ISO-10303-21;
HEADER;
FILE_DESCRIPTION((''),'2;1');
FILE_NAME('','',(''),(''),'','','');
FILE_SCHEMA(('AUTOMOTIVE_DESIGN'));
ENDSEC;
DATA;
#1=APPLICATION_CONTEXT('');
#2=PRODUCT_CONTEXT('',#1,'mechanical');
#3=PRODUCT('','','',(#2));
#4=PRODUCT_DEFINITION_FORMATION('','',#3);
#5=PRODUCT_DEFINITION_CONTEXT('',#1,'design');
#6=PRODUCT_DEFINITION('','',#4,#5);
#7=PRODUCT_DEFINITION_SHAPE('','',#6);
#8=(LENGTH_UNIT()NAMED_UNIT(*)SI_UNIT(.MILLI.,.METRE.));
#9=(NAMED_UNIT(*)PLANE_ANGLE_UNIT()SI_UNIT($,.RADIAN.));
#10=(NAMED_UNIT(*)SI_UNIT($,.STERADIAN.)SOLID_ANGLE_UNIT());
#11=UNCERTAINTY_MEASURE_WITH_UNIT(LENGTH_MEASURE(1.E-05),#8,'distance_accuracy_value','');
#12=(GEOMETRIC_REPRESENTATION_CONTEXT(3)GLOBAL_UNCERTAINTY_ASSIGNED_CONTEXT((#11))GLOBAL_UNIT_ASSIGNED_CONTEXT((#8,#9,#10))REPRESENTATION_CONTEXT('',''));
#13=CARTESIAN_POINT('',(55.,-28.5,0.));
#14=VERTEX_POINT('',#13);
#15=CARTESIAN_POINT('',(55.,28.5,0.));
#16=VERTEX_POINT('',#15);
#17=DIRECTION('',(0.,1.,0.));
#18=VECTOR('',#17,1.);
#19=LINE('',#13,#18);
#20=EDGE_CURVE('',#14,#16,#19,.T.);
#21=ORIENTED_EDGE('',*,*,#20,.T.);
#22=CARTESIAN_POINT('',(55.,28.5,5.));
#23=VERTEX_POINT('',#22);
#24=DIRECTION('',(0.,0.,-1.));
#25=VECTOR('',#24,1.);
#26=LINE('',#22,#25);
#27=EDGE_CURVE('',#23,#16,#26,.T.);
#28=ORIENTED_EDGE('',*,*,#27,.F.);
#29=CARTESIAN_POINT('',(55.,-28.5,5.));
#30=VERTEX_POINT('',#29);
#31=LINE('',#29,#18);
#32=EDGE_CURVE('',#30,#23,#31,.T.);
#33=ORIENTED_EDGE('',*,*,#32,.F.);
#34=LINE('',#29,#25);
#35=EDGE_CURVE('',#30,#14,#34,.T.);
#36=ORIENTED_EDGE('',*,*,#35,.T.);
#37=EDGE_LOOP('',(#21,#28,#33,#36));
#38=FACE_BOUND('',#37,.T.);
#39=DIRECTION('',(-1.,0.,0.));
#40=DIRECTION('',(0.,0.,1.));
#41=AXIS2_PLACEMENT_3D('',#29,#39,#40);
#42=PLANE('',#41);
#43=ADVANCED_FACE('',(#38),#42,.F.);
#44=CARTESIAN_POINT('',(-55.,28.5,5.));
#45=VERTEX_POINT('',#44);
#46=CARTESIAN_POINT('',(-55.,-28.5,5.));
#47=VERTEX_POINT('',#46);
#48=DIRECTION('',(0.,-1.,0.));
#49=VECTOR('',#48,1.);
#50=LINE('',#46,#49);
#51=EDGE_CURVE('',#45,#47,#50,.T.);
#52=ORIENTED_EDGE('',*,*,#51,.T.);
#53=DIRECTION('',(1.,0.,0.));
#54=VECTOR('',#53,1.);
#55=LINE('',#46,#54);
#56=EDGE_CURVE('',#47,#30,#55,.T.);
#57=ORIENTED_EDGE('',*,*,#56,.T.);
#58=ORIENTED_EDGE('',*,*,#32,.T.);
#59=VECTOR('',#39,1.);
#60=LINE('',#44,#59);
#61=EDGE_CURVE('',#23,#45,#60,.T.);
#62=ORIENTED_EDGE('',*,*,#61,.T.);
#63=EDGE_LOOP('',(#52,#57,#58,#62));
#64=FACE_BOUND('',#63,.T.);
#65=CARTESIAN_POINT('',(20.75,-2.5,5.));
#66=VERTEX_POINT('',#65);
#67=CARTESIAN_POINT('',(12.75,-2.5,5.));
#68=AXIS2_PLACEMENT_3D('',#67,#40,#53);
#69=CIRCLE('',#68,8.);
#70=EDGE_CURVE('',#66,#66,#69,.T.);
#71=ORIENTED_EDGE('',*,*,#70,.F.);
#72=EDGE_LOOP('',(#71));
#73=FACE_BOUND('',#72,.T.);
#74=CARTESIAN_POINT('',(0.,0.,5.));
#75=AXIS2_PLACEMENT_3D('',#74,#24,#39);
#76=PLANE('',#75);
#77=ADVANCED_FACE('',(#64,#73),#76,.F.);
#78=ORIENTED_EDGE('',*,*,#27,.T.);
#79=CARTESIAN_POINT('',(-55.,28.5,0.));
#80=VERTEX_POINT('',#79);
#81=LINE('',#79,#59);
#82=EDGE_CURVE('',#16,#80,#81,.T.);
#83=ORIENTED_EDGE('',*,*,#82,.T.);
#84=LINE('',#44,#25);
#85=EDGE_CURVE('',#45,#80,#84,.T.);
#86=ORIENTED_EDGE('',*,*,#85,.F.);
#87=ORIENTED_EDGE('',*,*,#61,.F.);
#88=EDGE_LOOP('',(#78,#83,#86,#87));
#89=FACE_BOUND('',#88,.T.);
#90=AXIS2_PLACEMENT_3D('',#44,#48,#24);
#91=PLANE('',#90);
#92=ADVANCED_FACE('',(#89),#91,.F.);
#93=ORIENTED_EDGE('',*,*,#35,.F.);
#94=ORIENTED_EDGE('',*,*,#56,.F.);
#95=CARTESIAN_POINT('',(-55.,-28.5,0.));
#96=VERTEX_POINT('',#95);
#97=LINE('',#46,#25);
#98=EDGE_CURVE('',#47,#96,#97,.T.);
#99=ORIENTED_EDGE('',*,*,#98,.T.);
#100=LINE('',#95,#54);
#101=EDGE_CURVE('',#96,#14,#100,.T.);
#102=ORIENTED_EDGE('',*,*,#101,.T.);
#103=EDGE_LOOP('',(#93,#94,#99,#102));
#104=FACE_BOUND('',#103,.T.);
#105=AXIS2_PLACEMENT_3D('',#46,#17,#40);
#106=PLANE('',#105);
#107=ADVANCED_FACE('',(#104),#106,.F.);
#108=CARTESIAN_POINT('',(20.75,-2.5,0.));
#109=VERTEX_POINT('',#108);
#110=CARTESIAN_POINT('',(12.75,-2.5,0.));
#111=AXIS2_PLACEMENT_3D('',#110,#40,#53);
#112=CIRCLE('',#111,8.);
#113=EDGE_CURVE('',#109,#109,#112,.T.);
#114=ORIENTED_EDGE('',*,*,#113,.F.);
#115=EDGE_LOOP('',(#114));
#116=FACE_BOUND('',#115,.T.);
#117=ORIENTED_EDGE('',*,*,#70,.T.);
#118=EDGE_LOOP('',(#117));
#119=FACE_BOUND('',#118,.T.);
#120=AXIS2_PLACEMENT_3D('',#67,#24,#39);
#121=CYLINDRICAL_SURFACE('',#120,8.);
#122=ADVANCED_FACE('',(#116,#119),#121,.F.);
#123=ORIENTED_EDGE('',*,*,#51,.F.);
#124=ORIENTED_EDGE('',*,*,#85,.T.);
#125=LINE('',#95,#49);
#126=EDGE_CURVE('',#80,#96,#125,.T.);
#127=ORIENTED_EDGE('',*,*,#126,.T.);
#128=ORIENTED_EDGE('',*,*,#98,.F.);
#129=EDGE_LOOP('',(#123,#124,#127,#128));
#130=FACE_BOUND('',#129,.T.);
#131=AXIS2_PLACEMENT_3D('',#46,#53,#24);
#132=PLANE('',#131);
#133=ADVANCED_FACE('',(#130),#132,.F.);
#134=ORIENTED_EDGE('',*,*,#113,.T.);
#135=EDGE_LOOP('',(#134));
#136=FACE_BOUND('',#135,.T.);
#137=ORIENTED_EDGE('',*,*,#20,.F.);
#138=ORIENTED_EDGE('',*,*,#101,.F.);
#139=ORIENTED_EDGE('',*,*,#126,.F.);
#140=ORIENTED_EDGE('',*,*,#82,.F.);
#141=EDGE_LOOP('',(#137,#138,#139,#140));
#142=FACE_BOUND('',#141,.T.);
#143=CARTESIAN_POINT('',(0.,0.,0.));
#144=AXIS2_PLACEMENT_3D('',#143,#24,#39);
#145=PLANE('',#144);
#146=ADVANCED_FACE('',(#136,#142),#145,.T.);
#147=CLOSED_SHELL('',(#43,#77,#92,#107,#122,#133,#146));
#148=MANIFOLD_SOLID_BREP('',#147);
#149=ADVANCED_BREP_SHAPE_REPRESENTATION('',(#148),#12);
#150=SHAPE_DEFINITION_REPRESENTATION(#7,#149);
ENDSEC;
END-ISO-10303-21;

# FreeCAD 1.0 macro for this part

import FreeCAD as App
import Part
import Sketcher
from FreeCAD import Vector

doc = App.newDocument("Part")
body = doc.addObject("PartDesign::Body", "Body")

sketch1 = doc.addObject("Sketcher::SketchObject", "Sketch")
body.addObject(sketch1)
sketch1.AttachmentSupport = (doc.XY_Plane, [""])
sketch1.MapMode = "FlatFace"
sketch1.addGeometry([
    Part.LineSegment(Vector(-55, 28, 0), Vector(-55, -28, 0)),
    Part.LineSegment(Vector(-55, -28, 0), Vector(55, -28, 0)),
    Part.LineSegment(Vector(55, -28, 0), Vector(55, 28, 0)),
    Part.LineSegment(Vector(55, 28, 0), Vector(-55, 28, 0)),
    Part.Circle(Vector(13, -2, 0), Vector(0, 0, 1), 8),
], False)
sketch1.addConstraint([
    Sketcher.Constraint("Coincident", 0, 2, 1, 1),
    Sketcher.Constraint("Coincident", 1, 2, 2, 1),
    Sketcher.Constraint("Coincident", 2, 2, 3, 1),
    Sketcher.Constraint("Coincident", 3, 2, 0, 1),
    Sketcher.Constraint("Vertical", 0),
    Sketcher.Constraint("Horizontal", 1),
    Sketcher.Constraint("Vertical", 2),
    Sketcher.Constraint("Horizontal", 3),
    Sketcher.Constraint("Symmetric", 0, 2, 2, 2, -1, 1),
    Sketcher.Constraint("Diameter", 4, 16.0),
    Sketcher.Constraint("DistanceX", 1, 1, 1, 2, 110.0),
    Sketcher.Constraint("DistanceY", 0, 2, 0, 1, 57.0),
    Sketcher.Constraint("DistanceY", 0, 2, 4, 3, 26.0),
    Sketcher.Constraint("DistanceX", -1, 1, 4, 3, 12.75),
])
pad1 = doc.addObject("PartDesign::Pad", "Pad")
body.addObject(pad1)
pad1.Profile = sketch1
pad1.Length = 5

doc.recompute()
